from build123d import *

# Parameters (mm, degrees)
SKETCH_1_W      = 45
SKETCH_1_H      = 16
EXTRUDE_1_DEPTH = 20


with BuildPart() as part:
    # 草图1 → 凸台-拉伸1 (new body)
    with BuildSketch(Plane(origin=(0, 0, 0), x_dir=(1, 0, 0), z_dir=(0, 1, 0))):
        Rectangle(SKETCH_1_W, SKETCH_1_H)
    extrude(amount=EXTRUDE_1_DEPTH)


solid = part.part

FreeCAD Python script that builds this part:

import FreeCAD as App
import Part
import Sketcher
from FreeCAD import Vector


def add_polygon(sketch, points):
    """Adds a closed chain of lines whose ends are joined by coincident constraints."""
    first, n = sketch.GeometryCount, len(points)
    for a, b in zip(points, points[1:] + points[:1]):
        sketch.addGeometry(Part.LineSegment(App.Vector(*a, 0), App.Vector(*b, 0)), False)
    for i in range(n):
        sketch.addConstraint(Sketcher.Constraint("Coincident", first + i, 2, first + (i + 1) % n, 1))

doc = App.newDocument("Part")
params = doc.addObject("Spreadsheet::Sheet", "Params")
for row, (alias, value) in enumerate([
    ("sketch1_width", "45 mm"),
    ("sketch1_height", "16 mm"),
    ("pad1_length", "20 mm"),
], start=1):
    params.set(f"A{row}", alias)
    params.set(f"B{row}", "=" + value)
    params.setAlias(f"B{row}", alias)

body = doc.addObject("PartDesign::Body", "Body")

sketch1 = doc.addObject("Sketcher::SketchObject", "Sketch")
body.addObject(sketch1)
sketch1.AttachmentSupport = (doc.XZ_Plane, [""])
sketch1.MapMode = "FlatFace"
add_polygon(sketch1, [(-22, -8), (-22, 8), (22, 8), (22, -8)])
sketch1.addConstraint(Sketcher.Constraint("Vertical", 0))
sketch1.addConstraint(Sketcher.Constraint("Horizontal", 1))
sketch1.addConstraint(Sketcher.Constraint("Vertical", 2))
sketch1.addConstraint(Sketcher.Constraint("Horizontal", 3))
sketch1.addConstraint(Sketcher.Constraint("Symmetric", 0, 2, 2, 2, -1, 1))
sketch1.addConstraint(Sketcher.Constraint("DistanceX", 1, 1, 1, 2, 45.0))
sketch1.addConstraint(Sketcher.Constraint("DistanceY", 0, 1, 0, 2, 16.0))
sketch1.setExpression("Constraints[9]", "Params.sketch1_width")
sketch1.setExpression("Constraints[10]", "Params.sketch1_height")
pad1 = doc.addObject("PartDesign::Pad", "Pad")
body.addObject(pad1)
pad1.Profile = sketch1
pad1.setExpression("Length", "Params.pad1_length")
pad1.Reversed = True

doc.recompute()
